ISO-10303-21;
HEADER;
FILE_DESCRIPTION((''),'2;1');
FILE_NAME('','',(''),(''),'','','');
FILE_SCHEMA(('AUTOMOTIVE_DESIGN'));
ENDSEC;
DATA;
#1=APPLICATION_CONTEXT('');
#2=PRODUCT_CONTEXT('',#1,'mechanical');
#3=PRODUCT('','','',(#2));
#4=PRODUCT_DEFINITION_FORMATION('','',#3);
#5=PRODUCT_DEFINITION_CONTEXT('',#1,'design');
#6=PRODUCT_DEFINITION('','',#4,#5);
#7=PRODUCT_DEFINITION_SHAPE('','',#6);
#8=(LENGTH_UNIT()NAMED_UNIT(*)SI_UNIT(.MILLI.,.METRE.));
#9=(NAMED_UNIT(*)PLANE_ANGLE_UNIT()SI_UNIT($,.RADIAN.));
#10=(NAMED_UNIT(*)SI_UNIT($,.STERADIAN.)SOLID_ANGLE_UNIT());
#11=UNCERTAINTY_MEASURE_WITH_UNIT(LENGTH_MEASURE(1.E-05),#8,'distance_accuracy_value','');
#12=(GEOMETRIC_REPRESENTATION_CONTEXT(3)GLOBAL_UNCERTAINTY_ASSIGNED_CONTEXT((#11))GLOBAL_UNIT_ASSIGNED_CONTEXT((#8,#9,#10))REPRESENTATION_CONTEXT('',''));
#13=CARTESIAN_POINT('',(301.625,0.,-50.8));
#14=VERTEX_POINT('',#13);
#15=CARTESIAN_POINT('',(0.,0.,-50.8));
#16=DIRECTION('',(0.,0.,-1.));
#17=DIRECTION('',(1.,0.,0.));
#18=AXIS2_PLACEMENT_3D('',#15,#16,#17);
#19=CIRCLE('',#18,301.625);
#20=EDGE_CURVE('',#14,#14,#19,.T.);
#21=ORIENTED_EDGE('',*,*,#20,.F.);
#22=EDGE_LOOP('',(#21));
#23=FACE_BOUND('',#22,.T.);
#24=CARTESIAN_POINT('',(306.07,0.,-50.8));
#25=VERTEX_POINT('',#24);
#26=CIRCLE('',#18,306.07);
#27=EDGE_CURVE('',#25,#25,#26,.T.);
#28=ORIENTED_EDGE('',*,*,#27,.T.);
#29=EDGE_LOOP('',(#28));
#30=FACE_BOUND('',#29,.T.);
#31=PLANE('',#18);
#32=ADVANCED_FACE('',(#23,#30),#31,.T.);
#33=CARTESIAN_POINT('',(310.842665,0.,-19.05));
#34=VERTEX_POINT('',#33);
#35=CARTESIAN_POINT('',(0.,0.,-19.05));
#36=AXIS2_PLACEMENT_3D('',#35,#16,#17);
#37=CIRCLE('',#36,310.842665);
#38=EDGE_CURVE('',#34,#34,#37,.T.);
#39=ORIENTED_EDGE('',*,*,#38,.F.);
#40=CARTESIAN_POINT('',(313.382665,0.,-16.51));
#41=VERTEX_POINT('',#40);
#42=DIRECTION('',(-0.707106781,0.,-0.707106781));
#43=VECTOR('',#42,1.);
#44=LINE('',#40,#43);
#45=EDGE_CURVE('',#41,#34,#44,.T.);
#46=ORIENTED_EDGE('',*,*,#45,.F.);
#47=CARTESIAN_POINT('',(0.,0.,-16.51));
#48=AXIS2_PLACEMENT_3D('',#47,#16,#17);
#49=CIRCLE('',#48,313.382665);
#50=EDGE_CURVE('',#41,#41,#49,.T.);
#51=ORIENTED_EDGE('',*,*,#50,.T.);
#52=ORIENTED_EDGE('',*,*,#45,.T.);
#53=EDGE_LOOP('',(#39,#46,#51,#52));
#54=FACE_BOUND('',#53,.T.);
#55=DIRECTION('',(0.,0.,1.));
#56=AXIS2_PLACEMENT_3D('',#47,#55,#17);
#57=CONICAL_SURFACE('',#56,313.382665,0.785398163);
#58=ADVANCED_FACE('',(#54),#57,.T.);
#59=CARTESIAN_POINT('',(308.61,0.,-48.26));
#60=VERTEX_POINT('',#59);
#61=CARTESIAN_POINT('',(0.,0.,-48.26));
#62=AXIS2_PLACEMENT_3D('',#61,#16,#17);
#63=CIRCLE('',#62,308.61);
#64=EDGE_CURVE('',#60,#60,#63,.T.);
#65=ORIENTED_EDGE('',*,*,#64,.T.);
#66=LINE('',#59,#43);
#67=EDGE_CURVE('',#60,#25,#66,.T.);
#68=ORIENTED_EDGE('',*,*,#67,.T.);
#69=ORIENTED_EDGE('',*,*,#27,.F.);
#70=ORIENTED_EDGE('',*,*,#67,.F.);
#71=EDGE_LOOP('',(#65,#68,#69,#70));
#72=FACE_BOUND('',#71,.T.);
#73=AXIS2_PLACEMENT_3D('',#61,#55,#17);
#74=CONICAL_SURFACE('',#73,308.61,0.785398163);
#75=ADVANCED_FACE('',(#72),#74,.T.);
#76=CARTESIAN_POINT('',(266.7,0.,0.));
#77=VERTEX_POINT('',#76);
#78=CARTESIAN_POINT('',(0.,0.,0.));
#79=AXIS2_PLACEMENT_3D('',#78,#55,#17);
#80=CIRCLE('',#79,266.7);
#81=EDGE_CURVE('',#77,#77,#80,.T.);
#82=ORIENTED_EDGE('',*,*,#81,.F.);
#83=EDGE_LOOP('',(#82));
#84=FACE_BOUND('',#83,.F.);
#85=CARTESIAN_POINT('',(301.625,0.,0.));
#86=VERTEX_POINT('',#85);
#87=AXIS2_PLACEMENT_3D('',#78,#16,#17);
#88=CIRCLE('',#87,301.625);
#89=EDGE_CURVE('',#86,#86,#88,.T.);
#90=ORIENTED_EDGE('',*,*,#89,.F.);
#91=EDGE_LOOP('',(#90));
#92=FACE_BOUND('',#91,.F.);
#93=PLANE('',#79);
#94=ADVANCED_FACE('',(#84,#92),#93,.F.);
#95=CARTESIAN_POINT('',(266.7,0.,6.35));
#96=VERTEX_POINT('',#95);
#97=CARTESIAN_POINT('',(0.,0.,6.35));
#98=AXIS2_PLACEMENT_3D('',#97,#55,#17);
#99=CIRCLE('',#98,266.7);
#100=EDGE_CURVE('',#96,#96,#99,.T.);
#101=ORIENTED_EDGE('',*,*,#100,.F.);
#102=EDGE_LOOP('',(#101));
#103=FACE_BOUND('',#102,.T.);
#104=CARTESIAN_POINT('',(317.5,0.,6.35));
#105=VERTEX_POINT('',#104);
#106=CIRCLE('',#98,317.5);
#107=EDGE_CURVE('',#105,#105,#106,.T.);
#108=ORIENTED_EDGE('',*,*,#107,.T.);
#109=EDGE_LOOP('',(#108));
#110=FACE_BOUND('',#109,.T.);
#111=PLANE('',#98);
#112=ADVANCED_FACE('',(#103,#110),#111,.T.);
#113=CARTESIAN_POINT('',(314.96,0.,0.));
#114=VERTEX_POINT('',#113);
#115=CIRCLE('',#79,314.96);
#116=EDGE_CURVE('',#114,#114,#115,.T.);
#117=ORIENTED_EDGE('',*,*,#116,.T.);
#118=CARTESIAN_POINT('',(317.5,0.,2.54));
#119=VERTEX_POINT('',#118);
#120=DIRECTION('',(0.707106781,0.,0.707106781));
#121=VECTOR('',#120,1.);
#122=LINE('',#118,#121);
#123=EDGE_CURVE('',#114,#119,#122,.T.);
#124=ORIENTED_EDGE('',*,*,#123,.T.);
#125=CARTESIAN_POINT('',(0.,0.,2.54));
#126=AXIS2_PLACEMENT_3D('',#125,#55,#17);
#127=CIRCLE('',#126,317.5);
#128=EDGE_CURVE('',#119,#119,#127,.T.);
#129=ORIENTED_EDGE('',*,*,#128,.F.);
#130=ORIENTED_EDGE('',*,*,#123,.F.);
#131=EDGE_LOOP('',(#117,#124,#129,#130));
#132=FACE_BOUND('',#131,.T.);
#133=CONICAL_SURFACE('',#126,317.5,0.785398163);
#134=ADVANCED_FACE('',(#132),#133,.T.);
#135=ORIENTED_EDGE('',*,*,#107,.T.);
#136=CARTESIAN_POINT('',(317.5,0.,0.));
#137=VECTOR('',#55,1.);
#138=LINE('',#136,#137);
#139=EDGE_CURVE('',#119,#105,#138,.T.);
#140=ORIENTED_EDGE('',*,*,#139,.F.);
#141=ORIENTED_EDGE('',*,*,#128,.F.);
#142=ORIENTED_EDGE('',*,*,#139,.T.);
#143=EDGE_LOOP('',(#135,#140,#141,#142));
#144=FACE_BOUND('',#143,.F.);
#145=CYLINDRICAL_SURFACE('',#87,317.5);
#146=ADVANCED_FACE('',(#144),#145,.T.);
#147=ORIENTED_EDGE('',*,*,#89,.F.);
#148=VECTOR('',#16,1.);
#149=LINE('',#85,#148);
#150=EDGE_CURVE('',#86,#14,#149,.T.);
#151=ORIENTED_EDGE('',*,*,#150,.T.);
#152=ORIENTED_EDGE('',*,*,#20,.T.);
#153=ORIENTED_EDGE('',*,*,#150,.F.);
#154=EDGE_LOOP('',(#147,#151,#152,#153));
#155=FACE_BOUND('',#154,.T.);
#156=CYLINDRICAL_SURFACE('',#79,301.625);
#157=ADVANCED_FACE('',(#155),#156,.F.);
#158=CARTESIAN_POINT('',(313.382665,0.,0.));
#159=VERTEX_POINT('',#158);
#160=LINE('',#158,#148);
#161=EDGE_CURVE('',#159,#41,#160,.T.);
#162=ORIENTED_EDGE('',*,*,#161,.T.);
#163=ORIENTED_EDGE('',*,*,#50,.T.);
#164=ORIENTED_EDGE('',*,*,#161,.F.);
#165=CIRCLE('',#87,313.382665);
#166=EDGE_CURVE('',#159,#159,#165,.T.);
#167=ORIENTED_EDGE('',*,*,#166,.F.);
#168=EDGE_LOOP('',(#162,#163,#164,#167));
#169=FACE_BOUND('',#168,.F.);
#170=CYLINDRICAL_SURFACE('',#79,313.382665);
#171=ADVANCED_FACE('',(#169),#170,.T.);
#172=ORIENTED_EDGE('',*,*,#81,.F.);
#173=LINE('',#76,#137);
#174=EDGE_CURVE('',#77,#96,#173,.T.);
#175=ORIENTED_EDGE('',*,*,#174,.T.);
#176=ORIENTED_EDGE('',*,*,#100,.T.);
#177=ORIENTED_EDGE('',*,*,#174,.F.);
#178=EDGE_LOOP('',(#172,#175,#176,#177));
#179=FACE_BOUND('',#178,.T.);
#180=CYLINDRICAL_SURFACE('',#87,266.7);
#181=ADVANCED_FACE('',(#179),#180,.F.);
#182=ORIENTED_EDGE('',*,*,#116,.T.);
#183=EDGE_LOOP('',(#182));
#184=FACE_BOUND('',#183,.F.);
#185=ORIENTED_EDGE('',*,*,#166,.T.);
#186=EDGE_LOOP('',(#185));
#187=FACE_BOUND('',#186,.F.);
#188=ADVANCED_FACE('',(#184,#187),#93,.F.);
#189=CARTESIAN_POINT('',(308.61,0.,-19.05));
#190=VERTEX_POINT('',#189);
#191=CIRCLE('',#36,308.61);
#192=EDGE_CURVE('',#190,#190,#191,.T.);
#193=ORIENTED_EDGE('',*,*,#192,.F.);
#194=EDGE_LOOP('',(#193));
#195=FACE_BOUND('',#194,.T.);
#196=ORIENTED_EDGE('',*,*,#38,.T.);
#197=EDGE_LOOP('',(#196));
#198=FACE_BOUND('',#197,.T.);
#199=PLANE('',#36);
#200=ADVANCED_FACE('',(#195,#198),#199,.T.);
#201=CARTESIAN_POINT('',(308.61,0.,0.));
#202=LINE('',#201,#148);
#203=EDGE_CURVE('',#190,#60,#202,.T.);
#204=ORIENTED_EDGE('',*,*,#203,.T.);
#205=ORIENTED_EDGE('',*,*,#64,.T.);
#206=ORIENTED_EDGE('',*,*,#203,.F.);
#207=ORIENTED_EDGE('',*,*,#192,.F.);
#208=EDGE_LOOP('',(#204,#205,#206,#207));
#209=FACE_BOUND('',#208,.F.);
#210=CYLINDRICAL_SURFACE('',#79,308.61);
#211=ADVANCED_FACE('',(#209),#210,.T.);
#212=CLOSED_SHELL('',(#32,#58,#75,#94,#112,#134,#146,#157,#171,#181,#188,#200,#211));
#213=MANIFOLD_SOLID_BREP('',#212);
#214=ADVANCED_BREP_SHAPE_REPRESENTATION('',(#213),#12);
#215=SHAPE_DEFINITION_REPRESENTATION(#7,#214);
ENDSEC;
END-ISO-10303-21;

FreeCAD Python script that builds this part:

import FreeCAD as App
import Part
import Sketcher

V = App.Vector
Q = App.Units.Quantity


def edges_at(feature, points):
    """Names of the edges that pass closest to the given points."""
    edges = feature.Shape.Edges
    near = lambda p: min(range(len(edges)), key=lambda i: edges[i].distToShape(Part.Vertex(*p))[0])
    return sorted({f"Edge{near(p) + 1}" for p in points})

doc = App.newDocument("Part")
body = doc.addObject("PartDesign::Body", "Body")

# Sketch on XY plane
sketch1 = body.newObject("Sketcher::SketchObject", "Sketch")
sketch1.AttachmentSupport = (doc.getObject("XY_Plane"), [""])
sketch1.MapMode = "FlatFace"
sketch1.addGeometry([
    Part.Circle(V(0, 0, 0), V(0, 0, 1), 317.5),
    Part.Circle(V(0, 0, 0), V(0, 0, 1), 266.7),
], False)
sketch1.addConstraint([
    Sketcher.Constraint("Coincident", 0, 3, -1, 1),
    Sketcher.Constraint("Coincident", 1, 3, -1, 1),
    Sketcher.Constraint("Diameter", 0, Q("25 in")),
    Sketcher.Constraint("Diameter", 1, Q("21 in")),
])
pad1 = body.newObject("PartDesign::Pad", "Pad")
pad1.Profile = sketch1
pad1.Length = Q("0.25 in")

# Sketch on XY plane
sketch2 = body.newObject("Sketcher::SketchObject", "Sketch001")
sketch2.AttachmentSupport = (doc.getObject("XY_Plane"), [""])
sketch2.MapMode = "FlatFace"
sketch2.addGeometry([
    Part.Circle(V(0, 0, 0), V(0, 0, 1), 308.61),
    Part.Circle(V(0, 0, 0), V(0, 0, 1), 301.625),
], False)
sketch2.addConstraint([
    Sketcher.Constraint("Coincident", 0, 3, -1, 1),
    Sketcher.Constraint("Coincident", 1, 3, -1, 1),
    Sketcher.Constraint("Diameter", 0, Q("24.3 in")),
    Sketcher.Constraint("Diameter", 1, Q("23.75 in")),
])
pad2 = body.newObject("PartDesign::Pad", "Pad001")
pad2.Profile = sketch2
pad2.Length = Q("2 in")
pad2.Reversed = True

# Sketch on XY plane
sketch3 = body.newObject("Sketcher::SketchObject", "Sketch002")
sketch3.AttachmentSupport = (doc.getObject("XY_Plane"), [""])
sketch3.MapMode = "FlatFace"
sketch3.addGeometry([
    Part.Circle(V(0, 0, 0), V(0, 0, 1), 313.382665),
    Part.Circle(V(0, 0, 0), V(0, 0, 1), 308.61),
], False)
sketch3.addConstraint([
    Sketcher.Constraint("Coincident", 0, 3, -1, 1),
    Sketcher.Constraint("Coincident", 1, 3, -1, 1),
    Sketcher.Constraint("Diameter", 1, Q("24.3 in")),
    Sketcher.Constraint("Diameter", 0, 626.76533),
])
pad3 = body.newObject("PartDesign::Pad", "Pad002")
pad3.Profile = sketch3
pad3.Length = Q("0.75 in")
pad3.Reversed = True
doc.recompute()

chamfer = body.newObject("PartDesign::Chamfer", "Chamfer")
chamfer.Base = (pad3, edges_at(pad3, [(-313.383, 0, -19.05), (-317.5, 0, 0), (-308.61, 0, -50.8)]))
chamfer.Size = Q("0.1 in")

doc.recompute()
